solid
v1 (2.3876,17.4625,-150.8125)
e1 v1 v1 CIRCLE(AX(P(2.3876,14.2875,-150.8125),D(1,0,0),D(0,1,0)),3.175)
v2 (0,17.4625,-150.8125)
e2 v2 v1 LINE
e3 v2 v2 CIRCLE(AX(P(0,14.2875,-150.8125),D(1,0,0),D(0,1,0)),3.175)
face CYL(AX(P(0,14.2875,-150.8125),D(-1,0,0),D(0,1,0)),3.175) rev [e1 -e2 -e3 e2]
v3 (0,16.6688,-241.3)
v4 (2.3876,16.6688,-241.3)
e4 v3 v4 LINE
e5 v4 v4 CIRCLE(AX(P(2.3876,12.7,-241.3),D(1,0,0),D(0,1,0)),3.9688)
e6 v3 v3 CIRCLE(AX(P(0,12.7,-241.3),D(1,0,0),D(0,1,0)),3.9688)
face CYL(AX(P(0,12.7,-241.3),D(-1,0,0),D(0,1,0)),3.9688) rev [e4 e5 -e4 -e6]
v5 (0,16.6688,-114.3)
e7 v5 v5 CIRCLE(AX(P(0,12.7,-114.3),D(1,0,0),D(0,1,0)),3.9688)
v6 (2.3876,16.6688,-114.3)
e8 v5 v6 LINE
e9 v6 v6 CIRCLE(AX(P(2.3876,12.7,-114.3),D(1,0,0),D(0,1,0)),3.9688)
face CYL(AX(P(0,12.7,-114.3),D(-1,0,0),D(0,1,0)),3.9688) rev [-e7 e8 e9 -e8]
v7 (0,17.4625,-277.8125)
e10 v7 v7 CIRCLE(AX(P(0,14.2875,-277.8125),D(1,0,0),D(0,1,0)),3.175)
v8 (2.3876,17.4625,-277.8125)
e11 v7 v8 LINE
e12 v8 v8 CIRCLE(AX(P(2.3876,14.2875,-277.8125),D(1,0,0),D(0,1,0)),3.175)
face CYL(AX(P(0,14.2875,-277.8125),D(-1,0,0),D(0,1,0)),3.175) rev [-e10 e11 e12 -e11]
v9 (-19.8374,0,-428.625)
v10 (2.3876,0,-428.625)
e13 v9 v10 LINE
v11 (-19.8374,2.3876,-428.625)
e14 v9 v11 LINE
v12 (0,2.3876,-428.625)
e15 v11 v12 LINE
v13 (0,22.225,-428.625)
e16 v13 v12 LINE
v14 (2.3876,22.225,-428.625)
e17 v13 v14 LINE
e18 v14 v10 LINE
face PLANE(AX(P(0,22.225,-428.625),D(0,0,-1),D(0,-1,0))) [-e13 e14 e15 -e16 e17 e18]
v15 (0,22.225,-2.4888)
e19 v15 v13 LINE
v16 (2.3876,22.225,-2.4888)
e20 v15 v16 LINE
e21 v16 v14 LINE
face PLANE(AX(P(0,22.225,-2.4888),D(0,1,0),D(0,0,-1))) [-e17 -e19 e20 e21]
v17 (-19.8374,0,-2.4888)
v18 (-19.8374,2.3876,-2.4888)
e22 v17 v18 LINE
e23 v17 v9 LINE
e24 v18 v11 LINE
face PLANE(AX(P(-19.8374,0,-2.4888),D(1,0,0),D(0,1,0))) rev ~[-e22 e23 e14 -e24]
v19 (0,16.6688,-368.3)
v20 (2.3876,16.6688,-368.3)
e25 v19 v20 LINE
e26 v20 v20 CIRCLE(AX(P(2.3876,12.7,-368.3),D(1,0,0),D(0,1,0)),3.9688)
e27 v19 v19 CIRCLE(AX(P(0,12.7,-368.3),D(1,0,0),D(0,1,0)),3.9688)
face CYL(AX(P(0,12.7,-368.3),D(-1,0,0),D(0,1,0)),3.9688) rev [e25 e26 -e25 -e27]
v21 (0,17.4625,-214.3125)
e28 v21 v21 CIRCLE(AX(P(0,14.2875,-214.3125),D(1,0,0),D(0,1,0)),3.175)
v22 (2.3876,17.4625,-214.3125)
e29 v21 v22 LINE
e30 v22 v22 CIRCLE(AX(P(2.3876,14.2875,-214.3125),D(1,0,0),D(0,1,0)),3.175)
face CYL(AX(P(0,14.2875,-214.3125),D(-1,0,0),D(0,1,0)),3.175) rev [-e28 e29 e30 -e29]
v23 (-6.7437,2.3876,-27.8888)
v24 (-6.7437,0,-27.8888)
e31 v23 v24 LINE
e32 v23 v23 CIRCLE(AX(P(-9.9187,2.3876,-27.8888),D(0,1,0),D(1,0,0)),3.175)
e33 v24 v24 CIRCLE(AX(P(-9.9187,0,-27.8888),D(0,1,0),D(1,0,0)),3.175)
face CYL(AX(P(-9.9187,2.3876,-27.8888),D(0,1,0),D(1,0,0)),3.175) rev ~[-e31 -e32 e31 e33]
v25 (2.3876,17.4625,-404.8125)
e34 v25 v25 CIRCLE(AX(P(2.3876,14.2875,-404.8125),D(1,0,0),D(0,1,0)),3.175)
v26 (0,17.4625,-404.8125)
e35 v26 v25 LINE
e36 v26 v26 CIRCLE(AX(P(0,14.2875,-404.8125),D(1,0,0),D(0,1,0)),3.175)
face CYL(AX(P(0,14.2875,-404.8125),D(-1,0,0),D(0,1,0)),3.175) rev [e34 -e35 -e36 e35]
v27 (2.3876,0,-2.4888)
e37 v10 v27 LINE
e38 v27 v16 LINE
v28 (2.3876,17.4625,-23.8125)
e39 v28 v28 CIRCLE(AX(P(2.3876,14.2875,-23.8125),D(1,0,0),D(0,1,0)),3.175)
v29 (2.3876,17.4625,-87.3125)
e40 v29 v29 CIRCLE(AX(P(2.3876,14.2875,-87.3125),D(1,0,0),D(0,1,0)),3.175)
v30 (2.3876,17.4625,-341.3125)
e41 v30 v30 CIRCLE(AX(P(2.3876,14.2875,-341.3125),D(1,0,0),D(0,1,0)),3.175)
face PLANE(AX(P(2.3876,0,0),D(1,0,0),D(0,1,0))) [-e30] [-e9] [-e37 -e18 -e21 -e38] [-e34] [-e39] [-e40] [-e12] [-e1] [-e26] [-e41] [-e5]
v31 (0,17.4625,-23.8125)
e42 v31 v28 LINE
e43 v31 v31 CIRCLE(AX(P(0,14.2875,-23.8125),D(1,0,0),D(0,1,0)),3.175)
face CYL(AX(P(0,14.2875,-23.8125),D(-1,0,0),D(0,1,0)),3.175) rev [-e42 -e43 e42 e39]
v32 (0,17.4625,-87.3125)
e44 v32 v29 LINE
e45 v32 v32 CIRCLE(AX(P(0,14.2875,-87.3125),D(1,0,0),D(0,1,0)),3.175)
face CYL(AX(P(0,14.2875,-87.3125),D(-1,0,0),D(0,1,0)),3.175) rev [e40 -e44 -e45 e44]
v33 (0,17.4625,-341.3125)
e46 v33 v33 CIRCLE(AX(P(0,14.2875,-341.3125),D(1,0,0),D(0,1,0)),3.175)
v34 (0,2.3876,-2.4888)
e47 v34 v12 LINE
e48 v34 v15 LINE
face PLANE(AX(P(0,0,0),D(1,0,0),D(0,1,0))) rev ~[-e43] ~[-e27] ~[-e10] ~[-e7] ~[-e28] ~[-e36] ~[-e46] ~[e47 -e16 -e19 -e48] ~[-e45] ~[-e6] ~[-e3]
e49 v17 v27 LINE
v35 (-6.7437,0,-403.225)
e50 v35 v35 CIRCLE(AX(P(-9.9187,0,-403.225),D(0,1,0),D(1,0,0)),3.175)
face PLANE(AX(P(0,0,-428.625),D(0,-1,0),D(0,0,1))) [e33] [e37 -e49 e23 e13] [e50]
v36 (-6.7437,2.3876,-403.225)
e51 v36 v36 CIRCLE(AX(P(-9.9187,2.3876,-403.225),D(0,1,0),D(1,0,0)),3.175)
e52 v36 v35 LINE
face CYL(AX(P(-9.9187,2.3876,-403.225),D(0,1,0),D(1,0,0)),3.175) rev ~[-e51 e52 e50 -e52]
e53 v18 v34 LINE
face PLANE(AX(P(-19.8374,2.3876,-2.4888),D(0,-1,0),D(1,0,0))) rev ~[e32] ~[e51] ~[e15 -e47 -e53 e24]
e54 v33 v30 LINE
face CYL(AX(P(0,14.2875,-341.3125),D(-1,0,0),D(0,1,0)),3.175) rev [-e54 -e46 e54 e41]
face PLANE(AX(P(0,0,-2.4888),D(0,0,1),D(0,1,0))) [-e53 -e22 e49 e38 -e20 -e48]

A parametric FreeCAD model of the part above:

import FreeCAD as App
import Part
import Sketcher
Q = App.Units.Quantity


def add_polygon(sketch, points):
    """Adds a closed chain of lines whose ends are joined by coincident constraints."""
    first, n = sketch.GeometryCount, len(points)
    for a, b in zip(points, points[1:] + points[:1]):
        sketch.addGeometry(Part.LineSegment(App.Vector(*a, 0), App.Vector(*b, 0)), False)
    for i in range(n):
        sketch.addConstraint(Sketcher.Constraint("Coincident", first + i, 2, first + (i + 1) % n, 1))

doc = App.newDocument("Part")
body = doc.addObject("PartDesign::Body", "Body")

sketch1 = body.newObject("Sketcher::SketchObject", "Sketch")
sketch1.AttachmentSupport = (doc.getObject("YZ_Plane"), [""])
sketch1.MapMode = "FlatFace"
add_polygon(sketch1, [(22.225, -2.4888), (0, -2.4888), (0, -428.625), (22.225, -428.625)])
sketch1.addGeometry(Part.Circle(App.Vector(14.2875, -404.8125, 0), App.Vector(0, 0, 1), 3.175), False)
sketch1.addGeometry(Part.Circle(App.Vector(12.7, -368.3, 0), App.Vector(0, 0, 1), 3.9688), False)
sketch1.addGeometry(Part.Circle(App.Vector(14.2875, -341.3125, 0), App.Vector(0, 0, 1), 3.175), False)
sketch1.addGeometry(Part.Circle(App.Vector(14.2875, -277.8125, 0), App.Vector(0, 0, 1), 3.175), False)
sketch1.addGeometry(Part.Circle(App.Vector(12.7, -241.3, 0), App.Vector(0, 0, 1), 3.9688), False)
sketch1.addGeometry(Part.Circle(App.Vector(14.2875, -214.3125, 0), App.Vector(0, 0, 1), 3.175), False)
sketch1.addGeometry(Part.Circle(App.Vector(12.7, -114.3, 0), App.Vector(0, 0, 1), 3.9688), False)
sketch1.addGeometry(Part.Circle(App.Vector(14.2875, -150.8125, 0), App.Vector(0, 0, 1), 3.175), False)
sketch1.addGeometry(Part.Circle(App.Vector(14.2875, -87.3125, 0), App.Vector(0, 0, 1), 3.175), False)
sketch1.addGeometry(Part.Circle(App.Vector(14.2875, -23.8125, 0), App.Vector(0, 0, 1), 3.175), False)
sketch1.addConstraint([
    Sketcher.Constraint("Horizontal", 0),
    Sketcher.Constraint("Vertical", 1),
    Sketcher.Constraint("Horizontal", 2),
    Sketcher.Constraint("Vertical", 3),
    Sketcher.Constraint("Equal", 4, 6),
    Sketcher.Constraint("Equal", 6, 7),
    Sketcher.Constraint("Equal", 5, 8),
    Sketcher.Constraint("Equal", 7, 9),
    Sketcher.Constraint("Equal", 8, 10),
    Sketcher.Constraint("Equal", 9, 11),
    Sketcher.Constraint("Equal", 11, 12),
    Sketcher.Constraint("Equal", 12, 13),
    Sketcher.Constraint("PointOnObject", 0, 2, -2),
    Sketcher.Constraint("Vertical", 4, 3, 6, 3),
    Sketcher.Constraint("Vertical", 6, 3, 7, 3),
    Sketcher.Constraint("Vertical", 5, 3, 8, 3),
    Sketcher.Constraint("Vertical", 7, 3, 9, 3),
    Sketcher.Constraint("Vertical", 8, 3, 10, 3),
    Sketcher.Constraint("Vertical", 9, 3, 11, 3),
    Sketcher.Constraint("Vertical", 11, 3, 12, 3),
    Sketcher.Constraint("Vertical", 12, 3, 13, 3),
    Sketcher.Constraint("Diameter", 4, Q("0.25 in")),
    Sketcher.Constraint("Diameter", 5, Q("0.3125 in")),
    Sketcher.Constraint("DistanceY", 4, 3, 7, 3, Q("5 in")),
    Sketcher.Constraint("DistanceY", 5, 3, 8, 3, Q("5 in")),
    Sketcher.Constraint("DistanceY", 6, 3, 9, 3, Q("5 in")),
    Sketcher.Constraint("DistanceY", 8, 3, 10, 3, Q("5 in")),
    Sketcher.Constraint("DistanceY", 7, 3, 11, 3, Q("5 in")),
    Sketcher.Constraint("DistanceY", 9, 3, 12, 3, Q("5 in")),
    Sketcher.Constraint("DistanceY", 11, 3, 13, 3, Q("5 in")),
    Sketcher.Constraint("DistanceX", -1, 1, 5, 3, Q("0.5 in")),
    Sketcher.Constraint("DistanceY", 10, 3, -1, 1, Q("4.5 in")),
    Sketcher.Constraint("DistanceY", 4, 3, 6, 3, Q("2.5 in")),
    Sketcher.Constraint("DistanceX", 0, 2, 0, 1, Q("0.875 in")),
    Sketcher.Constraint("DistanceX", 4, 3, 2, 2, Q("0.3125 in")),
    Sketcher.Constraint("DistanceY", 4, 3, -1, 1, Q("15.9375 in")),
    Sketcher.Constraint("DistanceY", 1, 2, -1, 1, Q("16.875 in")),
    Sketcher.Constraint("DistanceY", 1, 2, 1, 1, 426.1362),
])
pad1 = body.newObject("PartDesign::Pad", "Pad")
pad1.Profile = sketch1
pad1.Length = Q("0.094 in")

sketch2 = body.newObject("Sketcher::SketchObject", "Sketch001")
sketch2.AttachmentSupport = (doc.getObject("XY_Plane"), [""])
sketch2.MapMode = "FlatFace"
sketch2.AttachmentOffset = App.Placement(App.Vector(0, 0, -2.4888), App.Rotation())
add_polygon(sketch2, [(-19.8374, 0), (0, 0), (0, 2.3876), (-19.8374, 2.3876)])
sketch2.addConstraint([
    Sketcher.Constraint("Horizontal", 0),
    Sketcher.Constraint("Vertical", 1),
    Sketcher.Constraint("Horizontal", 2),
    Sketcher.Constraint("Vertical", 3),
    Sketcher.Constraint("Coincident", 0, 2, -1, 1),
    Sketcher.Constraint("DistanceX", 0, 1, 0, 2, Q("0.781 in")),
    Sketcher.Constraint("DistanceY", 1, 1, 1, 2, Q("0.094 in")),
])
pad2 = body.newObject("PartDesign::Pad", "Pad001")
pad2.Profile = sketch2
pad2.Length = 426.1362
pad2.Reversed = True

sketch3 = body.newObject("Sketcher::SketchObject", "Sketch002")
sketch3.AttachmentSupport = (doc.getObject("XZ_Plane"), [""])
sketch3.MapMode = "FlatFace"
sketch3.AttachmentOffset = App.Placement(App.Vector(0, 0, -0.094 * 25.4), App.Rotation())
sketch3.addGeometry([
    Part.Circle(App.Vector(-9.9187, -27.8888, 0), App.Vector(0, 0, 1), 3.175),
    Part.Circle(App.Vector(-9.9187, -403.225, 0), App.Vector(0, 0, 1), 3.175),
], False)
sketch3.addConstraint([
    Sketcher.Constraint("Equal", 0, 1),
    Sketcher.Constraint("Vertical", 0, 3, 1, 3),
    Sketcher.Constraint("Diameter", 0, Q("0.25 in")),
    Sketcher.Constraint("DistanceY", 1, 3, -1, 1, Q("15.875 in")),
    Sketcher.Constraint("DistanceX", 0, 3, -1, 1, Q("0.3905 in")),
    Sketcher.Constraint("DistanceY", 0, 3, -1, 1, 27.8888),
])
pocket1 = body.newObject("PartDesign::Pocket", "Pocket")
pocket1.Profile = sketch3
pocket1.Type = "ThroughAll"
pocket1.Reversed = True

doc.recompute()
